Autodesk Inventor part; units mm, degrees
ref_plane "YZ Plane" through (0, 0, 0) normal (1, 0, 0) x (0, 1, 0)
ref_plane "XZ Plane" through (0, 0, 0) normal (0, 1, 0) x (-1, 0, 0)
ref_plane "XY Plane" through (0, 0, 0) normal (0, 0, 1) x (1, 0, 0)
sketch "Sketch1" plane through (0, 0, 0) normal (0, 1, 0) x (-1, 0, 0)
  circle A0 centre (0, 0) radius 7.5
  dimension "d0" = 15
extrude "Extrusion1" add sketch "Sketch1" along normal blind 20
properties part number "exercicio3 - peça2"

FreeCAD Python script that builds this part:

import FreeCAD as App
import Part
import Sketcher
from FreeCAD import Vector
Q = App.Units.Quantity

doc = App.newDocument("Part")
params = doc.addObject("Spreadsheet::Sheet", "Params")
for row, (alias, value) in enumerate([
    ("sketch1_diameter", "15 mm"),
    ("pad1_length", "20 mm"),
], start=1):
    params.set(f"A{row}", alias)
    params.set(f"B{row}", "=" + value)
    params.setAlias(f"B{row}", alias)

body = doc.addObject("PartDesign::Body", "Body")

# Sketch on XZ plane
sketch1 = body.newObject("Sketcher::SketchObject", "Sketch")
sketch1.AttachmentSupport = (doc.getObject("XZ_Plane"), [""])
sketch1.MapMode = "FlatFace"
sketch1.addGeometry(Part.Circle(Vector(0, 0, 0), Vector(0, 0, 1), 7.5), False)
sketch1.addConstraint([
    Sketcher.Constraint("Coincident", 0, 3, -1, 1),
    Sketcher.Constraint("Diameter", 0, Q("15 mm")),
])
sketch1.setExpression("Constraints[1]", "Params.sketch1_diameter")
pad1 = body.newObject("PartDesign::Pad", "Pad")
pad1.Profile = sketch1
pad1.setExpression("Length", "Params.pad1_length")
pad1.Reversed = True

doc.recompute()
